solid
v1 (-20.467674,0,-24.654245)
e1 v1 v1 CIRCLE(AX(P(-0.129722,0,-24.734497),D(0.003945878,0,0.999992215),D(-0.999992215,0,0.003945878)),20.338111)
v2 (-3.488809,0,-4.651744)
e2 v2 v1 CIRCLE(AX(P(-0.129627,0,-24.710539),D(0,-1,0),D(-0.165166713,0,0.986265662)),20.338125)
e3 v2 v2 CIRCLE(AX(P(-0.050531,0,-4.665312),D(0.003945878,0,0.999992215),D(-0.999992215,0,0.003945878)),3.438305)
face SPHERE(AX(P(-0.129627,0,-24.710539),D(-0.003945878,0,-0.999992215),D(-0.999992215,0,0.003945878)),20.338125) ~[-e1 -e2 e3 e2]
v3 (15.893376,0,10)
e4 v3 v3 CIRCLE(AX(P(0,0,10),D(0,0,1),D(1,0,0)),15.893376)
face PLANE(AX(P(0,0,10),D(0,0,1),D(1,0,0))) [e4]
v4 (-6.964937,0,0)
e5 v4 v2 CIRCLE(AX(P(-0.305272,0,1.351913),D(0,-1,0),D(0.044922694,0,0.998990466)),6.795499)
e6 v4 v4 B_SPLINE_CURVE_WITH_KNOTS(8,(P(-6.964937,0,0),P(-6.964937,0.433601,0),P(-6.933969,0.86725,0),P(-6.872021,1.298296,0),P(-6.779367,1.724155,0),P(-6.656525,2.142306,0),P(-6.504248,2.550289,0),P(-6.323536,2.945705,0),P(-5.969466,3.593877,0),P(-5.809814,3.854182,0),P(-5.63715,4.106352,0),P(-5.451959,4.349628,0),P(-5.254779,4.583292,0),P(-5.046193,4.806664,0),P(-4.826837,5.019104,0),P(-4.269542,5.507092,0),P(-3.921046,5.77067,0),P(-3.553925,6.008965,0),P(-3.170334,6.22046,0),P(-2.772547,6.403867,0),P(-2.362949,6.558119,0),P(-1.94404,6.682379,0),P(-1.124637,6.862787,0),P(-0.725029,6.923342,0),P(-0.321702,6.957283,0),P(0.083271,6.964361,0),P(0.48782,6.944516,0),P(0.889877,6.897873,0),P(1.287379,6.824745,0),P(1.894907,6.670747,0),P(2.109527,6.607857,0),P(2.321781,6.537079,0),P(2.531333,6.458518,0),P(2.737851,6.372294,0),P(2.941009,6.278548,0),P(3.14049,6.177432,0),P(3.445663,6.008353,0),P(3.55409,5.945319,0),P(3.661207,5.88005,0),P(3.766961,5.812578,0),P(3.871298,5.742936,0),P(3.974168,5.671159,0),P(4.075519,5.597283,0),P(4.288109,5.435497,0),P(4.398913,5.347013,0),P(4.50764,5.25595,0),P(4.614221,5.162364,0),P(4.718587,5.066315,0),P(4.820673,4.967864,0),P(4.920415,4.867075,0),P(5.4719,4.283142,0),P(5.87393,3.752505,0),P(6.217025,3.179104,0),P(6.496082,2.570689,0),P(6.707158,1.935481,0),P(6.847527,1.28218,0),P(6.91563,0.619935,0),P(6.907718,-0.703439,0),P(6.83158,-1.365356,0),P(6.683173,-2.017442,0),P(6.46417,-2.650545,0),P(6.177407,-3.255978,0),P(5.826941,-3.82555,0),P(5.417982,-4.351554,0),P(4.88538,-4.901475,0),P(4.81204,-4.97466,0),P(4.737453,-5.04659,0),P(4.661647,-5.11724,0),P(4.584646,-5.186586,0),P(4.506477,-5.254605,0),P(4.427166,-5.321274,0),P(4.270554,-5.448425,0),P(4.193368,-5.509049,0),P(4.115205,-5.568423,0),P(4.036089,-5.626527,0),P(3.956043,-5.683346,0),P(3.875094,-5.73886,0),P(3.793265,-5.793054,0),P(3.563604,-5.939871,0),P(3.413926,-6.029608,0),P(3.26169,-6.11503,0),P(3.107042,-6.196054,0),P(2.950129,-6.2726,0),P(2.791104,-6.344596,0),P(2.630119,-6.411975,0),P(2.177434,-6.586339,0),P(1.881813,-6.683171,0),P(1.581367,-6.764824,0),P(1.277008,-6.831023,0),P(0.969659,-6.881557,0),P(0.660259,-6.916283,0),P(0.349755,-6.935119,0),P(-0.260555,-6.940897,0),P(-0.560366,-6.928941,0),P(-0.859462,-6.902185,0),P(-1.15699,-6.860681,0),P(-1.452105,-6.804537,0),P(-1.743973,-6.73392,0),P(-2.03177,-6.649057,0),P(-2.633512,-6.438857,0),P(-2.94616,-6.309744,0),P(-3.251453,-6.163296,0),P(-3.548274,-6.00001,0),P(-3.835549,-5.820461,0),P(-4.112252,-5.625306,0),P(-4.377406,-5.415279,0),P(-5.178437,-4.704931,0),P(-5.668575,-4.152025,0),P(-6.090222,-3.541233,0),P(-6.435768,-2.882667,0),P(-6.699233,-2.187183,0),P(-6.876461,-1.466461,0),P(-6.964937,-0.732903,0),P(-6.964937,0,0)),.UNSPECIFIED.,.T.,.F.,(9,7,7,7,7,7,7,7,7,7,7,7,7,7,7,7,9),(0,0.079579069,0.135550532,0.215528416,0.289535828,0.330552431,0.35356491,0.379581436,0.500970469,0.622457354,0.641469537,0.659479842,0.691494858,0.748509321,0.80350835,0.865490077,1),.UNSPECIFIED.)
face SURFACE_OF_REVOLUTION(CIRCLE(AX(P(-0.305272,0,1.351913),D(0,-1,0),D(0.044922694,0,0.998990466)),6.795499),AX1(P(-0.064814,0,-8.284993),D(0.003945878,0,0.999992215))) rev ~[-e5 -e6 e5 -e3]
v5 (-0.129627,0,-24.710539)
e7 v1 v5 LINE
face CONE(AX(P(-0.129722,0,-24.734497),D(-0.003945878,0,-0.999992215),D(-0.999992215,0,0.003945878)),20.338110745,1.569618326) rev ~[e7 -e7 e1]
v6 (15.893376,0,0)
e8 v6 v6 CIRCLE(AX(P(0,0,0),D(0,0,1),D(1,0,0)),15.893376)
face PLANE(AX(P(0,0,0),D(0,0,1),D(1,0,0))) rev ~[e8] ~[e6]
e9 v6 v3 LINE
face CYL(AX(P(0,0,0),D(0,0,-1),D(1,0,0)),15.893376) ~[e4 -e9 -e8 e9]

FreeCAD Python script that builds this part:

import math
import FreeCAD as App
import Part
import Sketcher
from FreeCAD import Vector

doc = App.newDocument("Part")
params = doc.addObject("Spreadsheet::Sheet", "Params")
for row, (alias, value) in enumerate([
    ("revolution_angle", "360 deg"),
    ("pad1_length", "10 mm"),
], start=1):
    params.set(f"A{row}", alias)
    params.set(f"B{row}", "=" + value)
    params.setAlias(f"B{row}", alias)

body = doc.addObject("PartDesign::Body", "Body")

# Sketch on XZ plane
sketch1 = body.newObject("Sketcher::SketchObject", "Sketch")
sketch1.AttachmentSupport = (doc.getObject("XZ_Plane"), [""])
sketch1.MapMode = "FlatFace"
sketch1.addGeometry([
    Part.ArcOfCircle(Part.Circle(Vector(-0.305272, 1.351913, 0), Vector(0, 0, 1), 6.795499), math.radians(87.425253), math.radians(242.064505)),
    Part.ArcOfCircle(Part.Circle(Vector(-0.129627, -24.710539, 0), Vector(0, 0, 1), 20.338125), math.radians(99.506919), math.radians(179.841412)),
    Part.LineSegment(Vector(-20.467674, -24.654245, 0), Vector(-0.129627, -24.710539, 0)),
    Part.LineSegment(Vector(-0.129627, -24.710539, 0), Vector(0, 8.140552, 0)),
], False)
sketch1.addGeometry(Part.LineSegment(Vector(-0.129722, -24.734497, 0), Vector(0, 8.140552, 0)), True)  # axis
sketch1.addConstraint([
    Sketcher.Constraint("Coincident", 0, 2, 1, 1),
    Sketcher.Constraint("Coincident", 1, 2, 2, 1),
    Sketcher.Constraint("Coincident", 2, 2, 3, 1),
    Sketcher.Constraint("Coincident", 3, 2, 0, 1),
    Sketcher.Constraint("Coincident", 2, 2, 1, 3),
    Sketcher.Constraint("Coincident", 4, 2, 3, 2),
    Sketcher.Constraint("PointOnObject", 3, 2, -2),
    Sketcher.Constraint("Parallel", 3, 4),
    Sketcher.Constraint("Radius", 0, 6.795499),
    Sketcher.Constraint("Radius", 1, 20.338125),
    Sketcher.Constraint("DistanceY", 1, 2, 0, 2, 20.002501),
    Sketcher.Constraint("DistanceY", 1, 3, -1, 1, 24.710539),
    Sketcher.Constraint("DistanceX", 0, 2, -1, 1, 3.488809),
    Sketcher.Constraint("DistanceY", -1, 1, 3, 2, 8.140552),
    Sketcher.Constraint("DistanceX", 4, 1, -1, 1, 0.129722),
    Sketcher.Constraint("DistanceY", 4, 1, 1, 3, 0.023958),
])
revolution = body.newObject("PartDesign::Revolution", "Revolution")
revolution.Profile = sketch1
revolution.ReferenceAxis = (sketch1, ["Axis0"])
revolution.setExpression("Angle", "Params.revolution_angle")

# Sketch on XY plane
sketch2 = body.newObject("Sketcher::SketchObject", "Sketch001")
sketch2.AttachmentSupport = (doc.getObject("XY_Plane"), [""])
sketch2.MapMode = "FlatFace"
sketch2.addGeometry(Part.Circle(Vector(0, 0, 0), Vector(0, 0, 1), 15.893376), False)
sketch2.addConstraint([
    Sketcher.Constraint("Coincident", 0, 3, -1, 1),
    Sketcher.Constraint("Diameter", 0, 31.786752),
])
pad1 = body.newObject("PartDesign::Pad", "Pad")
pad1.Profile = sketch2
pad1.setExpression("Length", "Params.pad1_length")

doc.recompute()
